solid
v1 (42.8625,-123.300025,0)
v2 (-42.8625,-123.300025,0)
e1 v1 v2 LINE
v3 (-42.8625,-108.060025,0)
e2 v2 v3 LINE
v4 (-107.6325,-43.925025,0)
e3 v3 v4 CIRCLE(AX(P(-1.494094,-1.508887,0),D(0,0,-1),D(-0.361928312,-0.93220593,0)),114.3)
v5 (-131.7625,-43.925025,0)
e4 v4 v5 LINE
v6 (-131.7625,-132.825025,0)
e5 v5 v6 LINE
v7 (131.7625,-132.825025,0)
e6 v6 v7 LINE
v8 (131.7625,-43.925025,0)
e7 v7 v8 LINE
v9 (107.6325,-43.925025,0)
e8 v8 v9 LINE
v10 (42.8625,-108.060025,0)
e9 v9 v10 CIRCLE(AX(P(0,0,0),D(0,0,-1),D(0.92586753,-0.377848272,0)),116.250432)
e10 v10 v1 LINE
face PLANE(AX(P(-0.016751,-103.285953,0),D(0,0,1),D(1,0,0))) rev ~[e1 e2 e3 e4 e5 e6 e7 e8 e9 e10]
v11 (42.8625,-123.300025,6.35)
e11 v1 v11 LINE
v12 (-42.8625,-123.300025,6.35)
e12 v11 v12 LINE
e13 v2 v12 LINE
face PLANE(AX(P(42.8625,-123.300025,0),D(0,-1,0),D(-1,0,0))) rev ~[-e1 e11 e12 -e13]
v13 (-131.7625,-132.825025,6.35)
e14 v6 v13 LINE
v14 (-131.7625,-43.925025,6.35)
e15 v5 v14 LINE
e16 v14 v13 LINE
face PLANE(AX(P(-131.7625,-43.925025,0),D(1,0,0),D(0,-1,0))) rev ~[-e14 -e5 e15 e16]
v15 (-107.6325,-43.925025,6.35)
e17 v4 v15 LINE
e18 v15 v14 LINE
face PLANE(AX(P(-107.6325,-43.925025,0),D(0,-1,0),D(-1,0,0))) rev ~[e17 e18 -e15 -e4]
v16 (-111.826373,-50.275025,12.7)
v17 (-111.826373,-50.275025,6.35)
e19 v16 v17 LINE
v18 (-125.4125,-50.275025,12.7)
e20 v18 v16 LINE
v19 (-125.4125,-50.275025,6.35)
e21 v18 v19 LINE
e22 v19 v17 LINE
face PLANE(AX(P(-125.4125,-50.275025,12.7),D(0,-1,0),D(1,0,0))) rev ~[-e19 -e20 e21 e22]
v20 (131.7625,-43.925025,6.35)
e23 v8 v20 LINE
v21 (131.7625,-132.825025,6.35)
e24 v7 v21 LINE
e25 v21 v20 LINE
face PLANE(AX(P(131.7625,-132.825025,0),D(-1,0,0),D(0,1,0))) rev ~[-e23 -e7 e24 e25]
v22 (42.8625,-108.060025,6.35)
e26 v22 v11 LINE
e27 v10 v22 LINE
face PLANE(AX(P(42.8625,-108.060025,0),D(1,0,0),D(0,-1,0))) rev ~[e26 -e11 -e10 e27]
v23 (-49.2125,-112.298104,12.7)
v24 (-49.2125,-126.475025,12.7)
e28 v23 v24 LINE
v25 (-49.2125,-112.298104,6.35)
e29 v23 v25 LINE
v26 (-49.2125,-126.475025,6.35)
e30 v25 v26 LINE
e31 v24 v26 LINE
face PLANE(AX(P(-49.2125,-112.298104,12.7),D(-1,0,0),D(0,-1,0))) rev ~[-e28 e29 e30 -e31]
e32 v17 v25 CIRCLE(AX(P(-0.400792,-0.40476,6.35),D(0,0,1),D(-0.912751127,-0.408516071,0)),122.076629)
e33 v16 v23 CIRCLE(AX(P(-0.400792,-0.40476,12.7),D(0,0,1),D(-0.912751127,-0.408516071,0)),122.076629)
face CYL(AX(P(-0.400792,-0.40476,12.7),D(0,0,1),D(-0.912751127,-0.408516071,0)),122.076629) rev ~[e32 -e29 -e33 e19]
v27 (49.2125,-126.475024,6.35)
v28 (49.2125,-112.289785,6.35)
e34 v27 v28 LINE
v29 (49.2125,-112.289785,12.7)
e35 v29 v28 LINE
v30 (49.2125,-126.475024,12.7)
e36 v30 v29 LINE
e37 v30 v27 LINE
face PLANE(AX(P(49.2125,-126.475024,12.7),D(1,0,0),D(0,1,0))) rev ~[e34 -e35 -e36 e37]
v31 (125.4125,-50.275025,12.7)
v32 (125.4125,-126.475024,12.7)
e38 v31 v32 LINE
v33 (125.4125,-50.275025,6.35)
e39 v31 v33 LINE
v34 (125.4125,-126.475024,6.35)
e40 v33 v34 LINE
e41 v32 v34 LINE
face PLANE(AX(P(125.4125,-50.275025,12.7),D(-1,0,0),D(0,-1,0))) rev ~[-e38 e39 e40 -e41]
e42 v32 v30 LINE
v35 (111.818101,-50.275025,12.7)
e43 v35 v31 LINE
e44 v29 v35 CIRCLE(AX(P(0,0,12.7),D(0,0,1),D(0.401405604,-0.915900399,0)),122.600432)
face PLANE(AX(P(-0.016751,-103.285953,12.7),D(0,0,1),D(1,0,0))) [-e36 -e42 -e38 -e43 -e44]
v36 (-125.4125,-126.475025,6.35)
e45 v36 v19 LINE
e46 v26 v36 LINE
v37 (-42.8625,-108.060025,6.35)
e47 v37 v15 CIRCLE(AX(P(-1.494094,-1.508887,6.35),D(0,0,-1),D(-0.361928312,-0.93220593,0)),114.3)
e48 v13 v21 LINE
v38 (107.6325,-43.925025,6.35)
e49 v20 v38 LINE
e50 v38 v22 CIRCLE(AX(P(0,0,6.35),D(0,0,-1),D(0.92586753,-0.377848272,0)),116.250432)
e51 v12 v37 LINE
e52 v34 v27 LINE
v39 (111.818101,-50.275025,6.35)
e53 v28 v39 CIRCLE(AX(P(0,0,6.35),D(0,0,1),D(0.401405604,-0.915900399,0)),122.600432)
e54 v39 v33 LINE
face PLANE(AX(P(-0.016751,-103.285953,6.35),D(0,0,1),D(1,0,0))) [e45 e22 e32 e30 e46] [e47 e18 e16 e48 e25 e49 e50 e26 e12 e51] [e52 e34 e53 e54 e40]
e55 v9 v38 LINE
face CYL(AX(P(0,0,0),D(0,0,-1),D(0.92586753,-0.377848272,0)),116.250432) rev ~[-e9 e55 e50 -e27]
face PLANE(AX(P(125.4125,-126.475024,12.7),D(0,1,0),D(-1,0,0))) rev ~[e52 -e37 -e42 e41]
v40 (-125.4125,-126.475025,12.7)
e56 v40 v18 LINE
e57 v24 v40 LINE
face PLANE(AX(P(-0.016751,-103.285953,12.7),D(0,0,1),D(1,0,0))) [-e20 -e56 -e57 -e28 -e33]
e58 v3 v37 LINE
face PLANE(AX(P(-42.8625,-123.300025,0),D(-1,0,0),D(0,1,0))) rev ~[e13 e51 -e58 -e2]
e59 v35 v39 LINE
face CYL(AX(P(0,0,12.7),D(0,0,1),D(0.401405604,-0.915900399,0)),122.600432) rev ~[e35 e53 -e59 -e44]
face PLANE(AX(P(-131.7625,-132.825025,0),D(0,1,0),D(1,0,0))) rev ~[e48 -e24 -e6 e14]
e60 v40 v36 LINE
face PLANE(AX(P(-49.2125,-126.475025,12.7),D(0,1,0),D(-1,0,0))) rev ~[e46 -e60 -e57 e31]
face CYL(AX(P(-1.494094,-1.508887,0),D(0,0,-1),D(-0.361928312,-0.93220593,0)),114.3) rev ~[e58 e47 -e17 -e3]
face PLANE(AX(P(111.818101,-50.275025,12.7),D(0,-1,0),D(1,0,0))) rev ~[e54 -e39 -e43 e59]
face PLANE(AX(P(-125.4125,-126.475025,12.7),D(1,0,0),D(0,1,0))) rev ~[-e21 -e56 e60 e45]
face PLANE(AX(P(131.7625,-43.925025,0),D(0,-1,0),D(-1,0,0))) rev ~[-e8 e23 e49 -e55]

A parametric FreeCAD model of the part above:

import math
import FreeCAD as App
import Part
import Sketcher

V = App.Vector
Q = App.Units.Quantity

doc = App.newDocument("Part")
body = doc.addObject("PartDesign::Body", "Body")

# Sketch on XY plane
sketch1 = body.newObject("Sketcher::SketchObject", "Sketch")
sketch1.AttachmentSupport = (doc.getObject("XY_Plane"), [""])
sketch1.MapMode = "FlatFace"
sketch1.addGeometry(Part.LineSegment(V(-132, -44, 0), V(-132, -133, 0)), False)
sketch1.addGeometry(Part.LineSegment(V(-132, -133, 0), V(132, -133, 0)), False)
sketch1.addGeometry(Part.LineSegment(V(132, -133, 0), V(132, -44, 0)), False)
sketch1.addGeometry(Part.LineSegment(V(132, -44, 0), V(108, -44, 0)), False)
sketch1.addGeometry(Part.ArcOfCircle(Part.Circle(V(0, 0, 0), V(0, 0, 1), 116), math.radians(-68), math.radians(-22)), False)
sketch1.addGeometry(Part.LineSegment(V(43, -108, 0), V(43, -123, 0)), False)
sketch1.addGeometry(Part.LineSegment(V(43, -123, 0), V(-43, -123, 0)), False)
sketch1.addGeometry(Part.LineSegment(V(-43, -123, 0), V(-43, -108, 0)), False)
sketch1.addGeometry(Part.ArcOfCircle(Part.Circle(V(-1, -2, 0), V(0, 0, 1), 114), math.radians(-158), math.radians(-111)), False)
sketch1.addGeometry(Part.LineSegment(V(-108, -44, 0), V(-132, -44, 0)), False)
sketch1.addConstraint(Sketcher.Constraint("Coincident", 0, 2, 1, 1))
sketch1.addConstraint(Sketcher.Constraint("Coincident", 1, 2, 2, 1))
sketch1.addConstraint(Sketcher.Constraint("Coincident", 2, 2, 3, 1))
sketch1.addConstraint(Sketcher.Constraint("Coincident", 3, 2, 4, 2))
sketch1.addConstraint(Sketcher.Constraint("Coincident", 4, 1, 5, 1))
sketch1.addConstraint(Sketcher.Constraint("Coincident", 5, 2, 6, 1))
sketch1.addConstraint(Sketcher.Constraint("Coincident", 6, 2, 7, 1))
sketch1.addConstraint(Sketcher.Constraint("Coincident", 7, 2, 8, 2))
sketch1.addConstraint(Sketcher.Constraint("Coincident", 8, 1, 9, 1))
sketch1.addConstraint(Sketcher.Constraint("Coincident", 9, 2, 0, 1))
sketch1.addConstraint(Sketcher.Constraint("Vertical", 0))
sketch1.addConstraint(Sketcher.Constraint("Horizontal", 1))
sketch1.addConstraint(Sketcher.Constraint("Vertical", 2))
sketch1.addConstraint(Sketcher.Constraint("Horizontal", 3))
sketch1.addConstraint(Sketcher.Constraint("Vertical", 5))
sketch1.addConstraint(Sketcher.Constraint("Horizontal", 6))
sketch1.addConstraint(Sketcher.Constraint("Vertical", 7))
sketch1.addConstraint(Sketcher.Constraint("Horizontal", 9))
sketch1.addConstraint(Sketcher.Constraint("Coincident", 4, 3, -1, 1))
sketch1.addConstraint(Sketcher.Constraint("Symmetric", 4, 1, 7, 2, -2))
sketch1.addConstraint(Sketcher.Constraint("Symmetric", 3, 2, 8, 1, -2))
sketch1.addConstraint(Sketcher.Constraint("Equal", 3, 9))
sketch1.addConstraint(Sketcher.Constraint("Radius", 8, Q("4.5 in")))
sketch1.addConstraint(Sketcher.Constraint("DistanceY", 0, 2, 0, 1, Q("3.5 in")))
sketch1.addConstraint(Sketcher.Constraint("DistanceY", 5, 2, 5, 1, Q("0.6 in")))
sketch1.addConstraint(Sketcher.Constraint("DistanceX", 3, 2, 3, 1, Q("0.95 in")))
sketch1.addConstraint(Sketcher.Constraint("DistanceX", 4, 1, 1, 2, Q("3.5 in")))
sketch1.addConstraint(Sketcher.Constraint("DistanceX", 1, 1, 1, 2, Q("10.375 in")))
sketch1.addConstraint(Sketcher.Constraint("Radius", 4, Q("116.250432 mm")))
pad1 = body.newObject("PartDesign::Pad", "Pad")
pad1.Profile = sketch1
pad1.Length = Q("0.5 in")

# Sketch on XY plane
sketch2 = body.newObject("Sketcher::SketchObject", "Sketch001")
sketch2.AttachmentSupport = (doc.getObject("XY_Plane"), [""])
sketch2.MapMode = "FlatFace"
sketch2.AttachmentOffset = App.Placement(V(0, 0, 0.5 * 25.4), App.Rotation())
sketch2.addGeometry(Part.LineSegment(V(-43, -123, 0), V(-43, -108, 0)), False)
sketch2.addGeometry(Part.ArcOfCircle(Part.Circle(V(-1, -2, 0), V(0, 0, 1), 114), math.radians(-158), math.radians(-111)), False)
sketch2.addGeometry(Part.LineSegment(V(-108, -44, 0), V(-132, -44, 0)), False)
sketch2.addGeometry(Part.LineSegment(V(-132, -44, 0), V(-132, -133, 0)), False)
sketch2.addGeometry(Part.LineSegment(V(-132, -133, 0), V(132, -133, 0)), False)
sketch2.addGeometry(Part.LineSegment(V(132, -133, 0), V(132, -44, 0)), False)
sketch2.addGeometry(Part.LineSegment(V(132, -44, 0), V(108, -44, 0)), False)
sketch2.addGeometry(Part.ArcOfCircle(Part.Circle(V(0, 0, 0), V(0, 0, 1), 116), math.radians(-68), math.radians(-22)), False)
sketch2.addGeometry(Part.LineSegment(V(43, -108, 0), V(43, -123, 0)), False)
sketch2.addGeometry(Part.LineSegment(V(43, -123, 0), V(-43, -123, 0)), False)
sketch2.addGeometry(Part.LineSegment(V(-125, -50, 0), V(-112, -50, 0)), False)
sketch2.addGeometry(Part.ArcOfCircle(Part.Circle(V(0, 0, 0), V(0, 0, 1), 122), math.radians(-156), math.radians(-114)), False)
sketch2.addGeometry(Part.LineSegment(V(-49, -112, 0), V(-49, -126, 0)), False)
sketch2.addGeometry(Part.LineSegment(V(-49, -126, 0), V(-125, -126, 0)), False)
sketch2.addGeometry(Part.LineSegment(V(-125, -126, 0), V(-125, -50, 0)), False)
sketch2.addGeometry(Part.LineSegment(V(125, -126, 0), V(49, -126, 0)), False)
sketch2.addGeometry(Part.LineSegment(V(49, -126, 0), V(49, -112, 0)), False)
sketch2.addGeometry(Part.ArcOfCircle(Part.Circle(V(0, 0, 0), V(0, 0, 1), 123), math.radians(-66), math.radians(-24)), False)
sketch2.addGeometry(Part.LineSegment(V(112, -50, 0), V(125, -50, 0)), False)
sketch2.addGeometry(Part.LineSegment(V(125, -50, 0), V(125, -126, 0)), False)
sketch2.addConstraint(Sketcher.Constraint("Coincident", 0, 2, 1, 2))
sketch2.addConstraint(Sketcher.Constraint("Coincident", 1, 1, 2, 1))
sketch2.addConstraint(Sketcher.Constraint("Coincident", 2, 2, 3, 1))
sketch2.addConstraint(Sketcher.Constraint("Coincident", 3, 2, 4, 1))
sketch2.addConstraint(Sketcher.Constraint("Coincident", 4, 2, 5, 1))
sketch2.addConstraint(Sketcher.Constraint("Coincident", 5, 2, 6, 1))
sketch2.addConstraint(Sketcher.Constraint("Coincident", 6, 2, 7, 2))
sketch2.addConstraint(Sketcher.Constraint("Coincident", 7, 1, 8, 1))
sketch2.addConstraint(Sketcher.Constraint("Coincident", 8, 2, 9, 1))
sketch2.addConstraint(Sketcher.Constraint("Coincident", 9, 2, 0, 1))
sketch2.addConstraint(Sketcher.Constraint("Coincident", 10, 2, 11, 1))
sketch2.addConstraint(Sketcher.Constraint("Coincident", 11, 2, 12, 1))
sketch2.addConstraint(Sketcher.Constraint("Coincident", 12, 2, 13, 1))
sketch2.addConstraint(Sketcher.Constraint("Coincident", 13, 2, 14, 1))
sketch2.addConstraint(Sketcher.Constraint("Coincident", 14, 2, 10, 1))
sketch2.addConstraint(Sketcher.Constraint("Coincident", 15, 2, 16, 1))
sketch2.addConstraint(Sketcher.Constraint("Coincident", 16, 2, 17, 1))
sketch2.addConstraint(Sketcher.Constraint("Coincident", 17, 2, 18, 1))
sketch2.addConstraint(Sketcher.Constraint("Coincident", 18, 2, 19, 1))
sketch2.addConstraint(Sketcher.Constraint("Coincident", 19, 2, 15, 1))
sketch2.addConstraint(Sketcher.Constraint("Vertical", 0))
sketch2.addConstraint(Sketcher.Constraint("Horizontal", 2))
sketch2.addConstraint(Sketcher.Constraint("Vertical", 3))
sketch2.addConstraint(Sketcher.Constraint("Horizontal", 4))
sketch2.addConstraint(Sketcher.Constraint("Vertical", 5))
sketch2.addConstraint(Sketcher.Constraint("Horizontal", 6))
sketch2.addConstraint(Sketcher.Constraint("Vertical", 8))
sketch2.addConstraint(Sketcher.Constraint("Horizontal", 9))
sketch2.addConstraint(Sketcher.Constraint("Horizontal", 10))
sketch2.addConstraint(Sketcher.Constraint("Vertical", 12))
sketch2.addConstraint(Sketcher.Constraint("Horizontal", 13))
sketch2.addConstraint(Sketcher.Constraint("Vertical", 14))
sketch2.addConstraint(Sketcher.Constraint("Horizontal", 15))
sketch2.addConstraint(Sketcher.Constraint("Vertical", 16))
sketch2.addConstraint(Sketcher.Constraint("Horizontal", 18))
sketch2.addConstraint(Sketcher.Constraint("Vertical", 19))
sketch2.addConstraint(Sketcher.Constraint("Coincident", 7, 3, -1, 1))
sketch2.addConstraint(Sketcher.Constraint("Coincident", 17, 3, -1, 1))
sketch2.addConstraint(Sketcher.Constraint("Symmetric", 2, 2, 5, 2, -2))
sketch2.addConstraint(Sketcher.Constraint("Symmetric", 0, 2, 7, 1, -2))
sketch2.addConstraint(Sketcher.Constraint("Symmetric", 12, 2, 15, 2, -2))
sketch2.addConstraint(Sketcher.Constraint("Symmetric", 14, 2, 18, 2, -2))
sketch2.addConstraint(Sketcher.Constraint("Equal", 2, 6))
sketch2.addConstraint(Sketcher.Constraint("Equal", 15, 14))
sketch2.addConstraint(Sketcher.Constraint("Radius", 1, Q("4.5 in")))
sketch2.addConstraint(Sketcher.Constraint("DistanceX", 13, 2, 13, 1, Q("3 in")))
sketch2.addConstraint(Sketcher.Constraint("DistanceY", 0, 1, 0, 2, Q("0.6 in")))
sketch2.addConstraint(Sketcher.Constraint("DistanceY", 3, 2, 3, 1, Q("3.5 in")))
sketch2.addConstraint(Sketcher.Constraint("DistanceX", 2, 2, 2, 1, Q("0.95 in")))
sketch2.addConstraint(Sketcher.Constraint("DistanceX", 2, 2, 0, 2, Q("3.5 in")))
sketch2.addConstraint(Sketcher.Constraint("DistanceX", 1, 1, 11, 2, Q("2.3 in")))
sketch2.addConstraint(Sketcher.Constraint("DistanceX", 4, 1, 4, 2, Q("10.375 in")))
sketch2.addConstraint(Sketcher.Constraint("DistanceY", 10, 2, 1, 1, Q("0.25 in")))
sketch2.addConstraint(Sketcher.Constraint("Radius", 7, Q("116.250432 mm")))
sketch2.addConstraint(Sketcher.Constraint("Radius", 11, Q("122.076629 mm")))
sketch2.addConstraint(Sketcher.Constraint("DistanceX", 18, 1, 18, 2, Q("13.594398 mm")))
sketch2.addConstraint(Sketcher.Constraint("DistanceY", 12, 2, 12, 1, Q("14.17692 mm")))
sketch2.addConstraint(Sketcher.Constraint("DistanceX", 10, 1, 10, 2, Q("13.586127 mm")))
pocket1 = body.newObject("PartDesign::Pocket", "Pocket")
pocket1.Profile = sketch2
pocket1.Length = Q("0.25 in")

doc.recompute()
